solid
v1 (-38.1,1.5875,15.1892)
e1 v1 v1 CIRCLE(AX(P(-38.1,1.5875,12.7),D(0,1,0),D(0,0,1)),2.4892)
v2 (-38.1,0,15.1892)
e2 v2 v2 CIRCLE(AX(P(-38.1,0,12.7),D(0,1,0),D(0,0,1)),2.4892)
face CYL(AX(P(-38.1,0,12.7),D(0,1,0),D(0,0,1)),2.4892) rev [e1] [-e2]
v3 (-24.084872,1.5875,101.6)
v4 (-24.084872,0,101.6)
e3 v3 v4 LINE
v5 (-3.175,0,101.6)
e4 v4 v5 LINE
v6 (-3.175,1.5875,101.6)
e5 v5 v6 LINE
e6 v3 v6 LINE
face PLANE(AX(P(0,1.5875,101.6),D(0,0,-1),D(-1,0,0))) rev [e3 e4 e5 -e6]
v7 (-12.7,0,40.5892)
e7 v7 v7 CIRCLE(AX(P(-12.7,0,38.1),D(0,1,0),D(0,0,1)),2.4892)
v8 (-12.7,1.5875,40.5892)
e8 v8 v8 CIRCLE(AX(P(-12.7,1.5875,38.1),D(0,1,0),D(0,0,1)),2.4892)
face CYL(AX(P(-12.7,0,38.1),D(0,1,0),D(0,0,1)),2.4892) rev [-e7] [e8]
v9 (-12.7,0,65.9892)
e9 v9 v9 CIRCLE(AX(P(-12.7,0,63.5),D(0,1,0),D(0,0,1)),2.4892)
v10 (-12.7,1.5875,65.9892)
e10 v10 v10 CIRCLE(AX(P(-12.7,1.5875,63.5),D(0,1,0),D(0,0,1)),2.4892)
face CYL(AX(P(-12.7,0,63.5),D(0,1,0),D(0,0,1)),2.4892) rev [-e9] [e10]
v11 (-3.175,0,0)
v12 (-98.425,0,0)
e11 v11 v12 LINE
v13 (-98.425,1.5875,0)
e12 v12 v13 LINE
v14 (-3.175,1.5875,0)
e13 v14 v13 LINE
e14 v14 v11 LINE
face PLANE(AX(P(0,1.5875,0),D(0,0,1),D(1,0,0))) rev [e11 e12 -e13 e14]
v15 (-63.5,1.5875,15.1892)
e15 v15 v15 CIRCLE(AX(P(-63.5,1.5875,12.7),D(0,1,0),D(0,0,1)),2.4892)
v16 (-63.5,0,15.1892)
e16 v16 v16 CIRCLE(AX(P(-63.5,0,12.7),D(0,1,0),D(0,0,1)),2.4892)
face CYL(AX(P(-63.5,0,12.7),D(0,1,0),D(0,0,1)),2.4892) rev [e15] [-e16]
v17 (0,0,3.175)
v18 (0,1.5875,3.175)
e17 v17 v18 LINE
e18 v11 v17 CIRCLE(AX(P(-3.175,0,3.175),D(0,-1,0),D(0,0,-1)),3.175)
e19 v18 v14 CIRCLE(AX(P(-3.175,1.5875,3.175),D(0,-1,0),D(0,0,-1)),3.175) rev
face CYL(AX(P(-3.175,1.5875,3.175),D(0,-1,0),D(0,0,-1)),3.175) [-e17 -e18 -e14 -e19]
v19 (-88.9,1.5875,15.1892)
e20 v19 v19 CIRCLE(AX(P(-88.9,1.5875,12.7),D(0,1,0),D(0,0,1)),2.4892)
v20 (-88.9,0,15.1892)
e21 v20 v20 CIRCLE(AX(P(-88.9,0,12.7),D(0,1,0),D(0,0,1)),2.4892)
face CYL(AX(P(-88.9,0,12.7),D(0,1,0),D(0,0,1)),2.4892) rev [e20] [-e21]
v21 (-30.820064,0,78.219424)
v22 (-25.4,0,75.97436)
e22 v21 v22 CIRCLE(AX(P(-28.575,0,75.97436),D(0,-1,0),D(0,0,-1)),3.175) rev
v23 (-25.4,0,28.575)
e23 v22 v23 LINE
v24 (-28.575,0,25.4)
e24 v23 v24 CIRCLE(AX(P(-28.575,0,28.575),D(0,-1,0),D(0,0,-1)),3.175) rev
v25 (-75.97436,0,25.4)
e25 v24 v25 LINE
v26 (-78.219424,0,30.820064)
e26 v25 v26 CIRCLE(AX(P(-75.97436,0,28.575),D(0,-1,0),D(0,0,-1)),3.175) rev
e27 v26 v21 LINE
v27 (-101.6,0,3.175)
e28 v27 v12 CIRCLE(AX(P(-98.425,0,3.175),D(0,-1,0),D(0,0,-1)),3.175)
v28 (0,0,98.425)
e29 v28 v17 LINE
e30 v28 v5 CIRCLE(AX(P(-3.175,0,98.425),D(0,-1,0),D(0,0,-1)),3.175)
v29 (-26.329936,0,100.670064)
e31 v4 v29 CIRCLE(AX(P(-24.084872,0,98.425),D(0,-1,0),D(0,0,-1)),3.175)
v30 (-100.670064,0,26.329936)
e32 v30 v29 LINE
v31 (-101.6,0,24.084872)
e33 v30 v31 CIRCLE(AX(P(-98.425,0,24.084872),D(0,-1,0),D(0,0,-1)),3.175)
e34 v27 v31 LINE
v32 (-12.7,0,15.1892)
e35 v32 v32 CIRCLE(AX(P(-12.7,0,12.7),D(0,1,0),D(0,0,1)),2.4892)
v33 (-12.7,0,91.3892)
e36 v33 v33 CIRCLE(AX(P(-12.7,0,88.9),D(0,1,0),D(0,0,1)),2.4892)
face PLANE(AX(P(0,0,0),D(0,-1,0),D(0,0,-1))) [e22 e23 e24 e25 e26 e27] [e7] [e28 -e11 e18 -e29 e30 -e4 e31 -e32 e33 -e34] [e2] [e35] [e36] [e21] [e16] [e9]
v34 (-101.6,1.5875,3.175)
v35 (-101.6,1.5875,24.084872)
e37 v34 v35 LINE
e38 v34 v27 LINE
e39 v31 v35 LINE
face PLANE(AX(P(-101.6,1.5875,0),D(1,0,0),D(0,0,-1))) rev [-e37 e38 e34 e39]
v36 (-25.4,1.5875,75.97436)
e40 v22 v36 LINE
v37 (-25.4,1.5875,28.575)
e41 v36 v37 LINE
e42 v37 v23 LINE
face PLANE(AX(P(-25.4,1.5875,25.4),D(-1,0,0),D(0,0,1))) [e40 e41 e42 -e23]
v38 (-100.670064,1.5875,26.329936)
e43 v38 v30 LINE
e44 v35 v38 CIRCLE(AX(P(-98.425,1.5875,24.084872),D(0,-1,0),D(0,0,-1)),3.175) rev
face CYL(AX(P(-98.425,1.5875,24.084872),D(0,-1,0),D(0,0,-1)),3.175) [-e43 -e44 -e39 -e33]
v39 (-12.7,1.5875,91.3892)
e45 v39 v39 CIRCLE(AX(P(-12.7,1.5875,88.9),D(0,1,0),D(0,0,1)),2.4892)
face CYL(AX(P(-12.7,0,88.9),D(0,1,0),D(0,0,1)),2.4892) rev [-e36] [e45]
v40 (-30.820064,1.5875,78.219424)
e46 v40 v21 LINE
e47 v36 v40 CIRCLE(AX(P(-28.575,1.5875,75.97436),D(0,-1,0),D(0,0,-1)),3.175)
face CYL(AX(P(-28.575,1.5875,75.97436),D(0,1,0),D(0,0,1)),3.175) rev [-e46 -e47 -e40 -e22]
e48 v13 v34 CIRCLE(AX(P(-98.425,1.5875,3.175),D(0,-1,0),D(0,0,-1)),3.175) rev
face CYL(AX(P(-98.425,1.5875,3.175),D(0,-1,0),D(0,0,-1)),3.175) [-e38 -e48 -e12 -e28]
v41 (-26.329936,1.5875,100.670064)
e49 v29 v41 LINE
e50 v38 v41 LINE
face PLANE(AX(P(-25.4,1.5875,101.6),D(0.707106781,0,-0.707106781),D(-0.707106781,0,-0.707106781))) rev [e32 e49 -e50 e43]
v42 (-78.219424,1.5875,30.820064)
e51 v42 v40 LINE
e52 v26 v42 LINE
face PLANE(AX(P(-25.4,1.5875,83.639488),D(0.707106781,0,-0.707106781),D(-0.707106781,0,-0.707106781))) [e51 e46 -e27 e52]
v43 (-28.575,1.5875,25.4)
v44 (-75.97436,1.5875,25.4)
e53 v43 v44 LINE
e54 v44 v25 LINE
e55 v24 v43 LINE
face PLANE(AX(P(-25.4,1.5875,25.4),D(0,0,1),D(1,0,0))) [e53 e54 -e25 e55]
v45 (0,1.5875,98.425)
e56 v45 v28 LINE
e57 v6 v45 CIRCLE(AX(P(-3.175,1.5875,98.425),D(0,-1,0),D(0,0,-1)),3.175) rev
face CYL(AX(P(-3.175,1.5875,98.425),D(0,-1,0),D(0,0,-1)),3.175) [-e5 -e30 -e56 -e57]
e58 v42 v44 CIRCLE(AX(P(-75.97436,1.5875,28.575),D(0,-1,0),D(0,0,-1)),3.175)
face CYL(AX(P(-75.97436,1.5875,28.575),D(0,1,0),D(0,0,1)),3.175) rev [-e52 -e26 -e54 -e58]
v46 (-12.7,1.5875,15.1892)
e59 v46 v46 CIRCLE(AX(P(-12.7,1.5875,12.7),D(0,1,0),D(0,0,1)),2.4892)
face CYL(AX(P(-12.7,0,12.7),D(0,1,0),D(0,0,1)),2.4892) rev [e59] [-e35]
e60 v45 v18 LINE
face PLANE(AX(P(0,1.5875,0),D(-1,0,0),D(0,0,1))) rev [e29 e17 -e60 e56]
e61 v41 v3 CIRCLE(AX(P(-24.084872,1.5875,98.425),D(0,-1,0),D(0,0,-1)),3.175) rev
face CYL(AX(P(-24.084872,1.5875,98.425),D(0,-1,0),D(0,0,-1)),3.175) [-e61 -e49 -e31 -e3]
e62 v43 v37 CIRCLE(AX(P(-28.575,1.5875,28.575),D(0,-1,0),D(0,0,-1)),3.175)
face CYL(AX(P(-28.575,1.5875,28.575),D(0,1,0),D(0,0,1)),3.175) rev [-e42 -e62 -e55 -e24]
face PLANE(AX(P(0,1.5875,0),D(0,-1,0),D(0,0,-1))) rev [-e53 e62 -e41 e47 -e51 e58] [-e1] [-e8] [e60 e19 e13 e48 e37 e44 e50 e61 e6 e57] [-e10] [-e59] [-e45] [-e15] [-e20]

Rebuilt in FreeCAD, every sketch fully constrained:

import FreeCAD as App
import Part
import Sketcher
Q = App.Units.Quantity


def edges_at(feature, points):
    """Names of the edges that pass closest to the given points."""
    edges = feature.Shape.Edges
    near = lambda p: min(range(len(edges)), key=lambda i: edges[i].distToShape(Part.Vertex(*p))[0])
    return sorted({f"Edge{near(p) + 1}" for p in points})


def add_polygon(sketch, points):
    """Adds a closed chain of lines whose ends are joined by coincident constraints."""
    first, n = sketch.GeometryCount, len(points)
    for a, b in zip(points, points[1:] + points[:1]):
        sketch.addGeometry(Part.LineSegment(App.Vector(*a, 0), App.Vector(*b, 0)), False)
    for i in range(n):
        sketch.addConstraint(Sketcher.Constraint("Coincident", first + i, 2, first + (i + 1) % n, 1))

doc = App.newDocument("Part")
params = doc.addObject("Spreadsheet::Sheet", "Params")
for row, (alias, value) in enumerate([
    ("sketch1_width", "4 in"),
    ("sketch1_width2", "1 in"),
    ("pad1_length", "0.0625 in"),
    ("sketch2_diameter", "0.196 in"),
    ("linearpattern_pitch", "1 in"),
    ("linearpattern2_pitch", "1 in"),
    ("fillet_radius", "0.125 in"),
], start=1):
    params.set(f"A{row}", alias)
    params.set(f"B{row}", "=" + value)
    params.setAlias(f"B{row}", alias)

body = doc.addObject("PartDesign::Body", "Body")

sketch1 = doc.addObject("Sketcher::SketchObject", "Sketch")
body.addObject(sketch1)
sketch1.AttachmentSupport = (doc.XZ_Plane, [""])
sketch1.MapMode = "FlatFace"
add_polygon(sketch1, [(0, 0), (-102, 0), (-102, 25), (-25, 102), (0, 102)])
add_polygon(sketch1, [(-84, 25), (-25, 25), (-25, 84)])
sketch1.addConstraint(Sketcher.Constraint("Horizontal", 0))
sketch1.addConstraint(Sketcher.Constraint("Vertical", 1))
sketch1.addConstraint(Sketcher.Constraint("Horizontal", 3))
sketch1.addConstraint(Sketcher.Constraint("Vertical", 4))
sketch1.addConstraint(Sketcher.Constraint("Horizontal", 5))
sketch1.addConstraint(Sketcher.Constraint("Vertical", 6))
sketch1.addConstraint(Sketcher.Constraint("Coincident", 4, 2, -1, 1))
sketch1.addConstraint(Sketcher.Constraint("Parallel", 2, 7))
sketch1.addConstraint(Sketcher.Constraint("Horizontal", 1, 2, 5, 2))
sketch1.addConstraint(Sketcher.Constraint("Vertical", 2, 2, 5, 2))
sketch1.addConstraint(Sketcher.Constraint("Equal", 3, 1))
sketch1.addConstraint(Sketcher.Constraint("Equal", 0, 4))
sketch1.addConstraint(Sketcher.Constraint("DistanceX", 0, 2, 0, 1, Q("4 in")))
sketch1.addConstraint(Sketcher.Constraint("DistanceX", 3, 1, 3, 2, Q("1 in")))
sketch1.addConstraint(Sketcher.Constraint("DistanceX", 5, 1, 5, 2, Q("58.239488 mm")))
sketch1.setExpression("Constraints[20]", "Params.sketch1_width")
sketch1.setExpression("Constraints[21]", "Params.sketch1_width2")
pad1 = doc.addObject("PartDesign::Pad", "Pad")
body.addObject(pad1)
pad1.Profile = sketch1
pad1.setExpression("Length", "Params.pad1_length")
pad1.Reversed = True

sketch2 = doc.addObject("Sketcher::SketchObject", "Sketch001")
body.addObject(sketch2)
sketch2.AttachmentSupport = (doc.XZ_Plane, [""])
sketch2.MapMode = "FlatFace"
sketch2.AttachmentOffset = App.Placement(App.Vector(0, 0, -0.0625 * 25.4), App.Rotation())
sketch2.addGeometry(Part.Circle(App.Vector(-12.7, 12.7, 0), App.Vector(0, 0, 1), 2.5), False)
sketch2.addConstraint(Sketcher.Constraint("Diameter", 0, Q("0.196 in")))
sketch2.addConstraint(Sketcher.Constraint("DistanceX", 0, 3, -1, 1, Q("0.5 in")))
sketch2.addConstraint(Sketcher.Constraint("DistanceY", -1, 1, 0, 3, Q("0.5 in")))
sketch2.setExpression("Constraints[0]", "Params.sketch2_diameter")
pocket1 = doc.addObject("PartDesign::Pocket", "Pocket")
body.addObject(pocket1)
pocket1.Profile = sketch2
pocket1.Type = "ThroughAll"
pocket1.Reversed = True
doc.recompute()

linearpattern = doc.addObject("PartDesign::LinearPattern", "LinearPattern")
body.addObject(linearpattern)
linearpattern.Originals = [pocket1]
linearpattern.Direction = (doc.Z_Axis, [""])
linearpattern.Mode = "offset"
linearpattern.setExpression("Offset", "Params.linearpattern_pitch")
linearpattern.Occurrences = 4
body.Tip = linearpattern
doc.recompute()

linearpattern2 = doc.addObject("PartDesign::LinearPattern", "LinearPattern001")
body.addObject(linearpattern2)
linearpattern2.Originals = [pocket1]
linearpattern2.Direction = (doc.X_Axis, [""])
linearpattern2.Mode = "offset"
linearpattern2.setExpression("Offset", "Params.linearpattern2_pitch")
linearpattern2.Occurrences = 4
linearpattern2.Reversed = True
body.Tip = linearpattern2
doc.recompute()

fillet = doc.addObject("PartDesign::Fillet", "Fillet")
body.addObject(fillet)
fillet.Base = (linearpattern2, edges_at(linearpattern2, [
    (-83.639, 0.794, 25.4),
    (-25.4, 0.794, 83.639),
    (-25.4, 0.794, 25.4),
    (0, 0.794, 101.6),
    (-25.4, 0.794, 101.6),
    (-101.6, 0.794, 25.4),
    (-101.6, 0.794, 0),
    (0, 0.794, 0),
]))
fillet.setExpression("Radius", "Params.fillet_radius")

doc.recompute()
